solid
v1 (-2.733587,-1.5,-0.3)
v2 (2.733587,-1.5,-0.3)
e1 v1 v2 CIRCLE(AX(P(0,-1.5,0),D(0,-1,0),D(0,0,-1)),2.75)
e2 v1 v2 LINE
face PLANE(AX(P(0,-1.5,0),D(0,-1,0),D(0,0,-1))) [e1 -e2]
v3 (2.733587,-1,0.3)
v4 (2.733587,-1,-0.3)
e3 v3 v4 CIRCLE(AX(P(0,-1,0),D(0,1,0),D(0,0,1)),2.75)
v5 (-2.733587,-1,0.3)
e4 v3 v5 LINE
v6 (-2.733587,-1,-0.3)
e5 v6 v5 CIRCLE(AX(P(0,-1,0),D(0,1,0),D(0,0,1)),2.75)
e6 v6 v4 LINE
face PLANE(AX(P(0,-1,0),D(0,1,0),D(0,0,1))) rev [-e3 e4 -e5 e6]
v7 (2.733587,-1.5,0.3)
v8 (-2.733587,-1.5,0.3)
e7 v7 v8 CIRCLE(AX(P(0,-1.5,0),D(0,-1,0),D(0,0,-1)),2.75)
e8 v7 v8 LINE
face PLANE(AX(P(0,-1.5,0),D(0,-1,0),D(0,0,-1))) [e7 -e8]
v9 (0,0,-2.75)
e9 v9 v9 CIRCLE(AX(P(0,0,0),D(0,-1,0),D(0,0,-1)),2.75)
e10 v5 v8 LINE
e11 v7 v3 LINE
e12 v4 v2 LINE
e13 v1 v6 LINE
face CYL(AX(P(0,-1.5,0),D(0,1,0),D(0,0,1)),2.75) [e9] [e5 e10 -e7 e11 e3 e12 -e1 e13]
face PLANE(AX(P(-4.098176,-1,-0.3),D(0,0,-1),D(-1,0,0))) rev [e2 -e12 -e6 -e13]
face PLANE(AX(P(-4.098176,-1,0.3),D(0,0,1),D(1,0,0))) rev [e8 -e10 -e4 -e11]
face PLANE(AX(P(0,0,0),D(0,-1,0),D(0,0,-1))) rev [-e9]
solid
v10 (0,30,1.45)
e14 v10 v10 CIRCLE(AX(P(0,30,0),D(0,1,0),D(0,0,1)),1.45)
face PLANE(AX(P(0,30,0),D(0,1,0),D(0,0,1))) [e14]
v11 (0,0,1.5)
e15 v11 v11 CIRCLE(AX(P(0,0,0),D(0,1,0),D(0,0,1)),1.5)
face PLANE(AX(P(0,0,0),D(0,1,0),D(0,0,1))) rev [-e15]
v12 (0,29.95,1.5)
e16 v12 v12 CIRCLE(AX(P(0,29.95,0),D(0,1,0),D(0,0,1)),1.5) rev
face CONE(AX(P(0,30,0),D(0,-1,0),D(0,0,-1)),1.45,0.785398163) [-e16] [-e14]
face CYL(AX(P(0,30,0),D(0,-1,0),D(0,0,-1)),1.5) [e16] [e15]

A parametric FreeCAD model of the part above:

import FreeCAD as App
import Part
import Sketcher
Q = App.Units.Quantity


def edges_at(feature, points):
    """Names of the edges that pass closest to the given points."""
    edges = feature.Shape.Edges
    near = lambda p: min(range(len(edges)), key=lambda i: edges[i].distToShape(Part.Vertex(*p))[0])
    return sorted({f"Edge{near(p) + 1}" for p in points})

doc = App.newDocument("Part")
body = doc.addObject("PartDesign::Body", "Body")

sketch1 = body.newObject("Sketcher::SketchObject", "Sketch")
sketch1.AttachmentSupport = (doc.getObject("XZ_Plane"), [""])
sketch1.MapMode = "FlatFace"
sketch1.addGeometry(Part.Circle(App.Vector(0, 0, 0), App.Vector(0, 0, 1), 1.5), False)
sketch1.addConstraint([
    Sketcher.Constraint("Coincident", 0, 3, -1, 1),
    Sketcher.Constraint("Diameter", 0, Q("3 mm")),
])
pad1 = body.newObject("PartDesign::Pad", "Pad")
pad1.Profile = sketch1
pad1.Length = 30
pad1.Reversed = True
doc.recompute()

chamfer = body.newObject("PartDesign::Chamfer", "Chamfer")
chamfer.Base = (pad1, edges_at(pad1, [(-1.5, 30, 0)]))
chamfer.Size = 0.05
body2 = doc.addObject("PartDesign::Body", "Body001")

sketch2 = body2.newObject("Sketcher::SketchObject", "Sketch001")
sketch2.AttachmentSupport = (doc.getObject("XZ_Plane001"), [""])
sketch2.MapMode = "FlatFace"
sketch2.addGeometry(Part.Circle(App.Vector(0, 0, 0), App.Vector(0, 0, 1), 2.75), False)
sketch2.addConstraint([
    Sketcher.Constraint("Coincident", 0, 3, -1, 1),
    Sketcher.Constraint("Diameter", 0, Q("5.5 mm")),
])
pad2 = body2.newObject("PartDesign::Pad", "Pad001")
pad2.Profile = sketch2
pad2.Length = 1.5

sketch3 = body2.newObject("Sketcher::SketchObject", "Sketch002")
sketch3.AttachmentSupport = (doc.getObject("XZ_Plane001"), [""])
sketch3.MapMode = "FlatFace"
sketch3.AttachmentOffset = App.Placement(App.Vector(0, 0, 1.5), App.Rotation())
sketch3.addGeometry([
    Part.LineSegment(App.Vector(-4.098176, 0.3, 0), App.Vector(-4.098176, -0.3, 0)),
    Part.LineSegment(App.Vector(-4.098176, -0.3, 0), App.Vector(4.098176, -0.3, 0)),
    Part.LineSegment(App.Vector(4.098176, -0.3, 0), App.Vector(4.098176, 0.3, 0)),
    Part.LineSegment(App.Vector(4.098176, 0.3, 0), App.Vector(-4.098176, 0.3, 0)),
], False)
sketch3.addConstraint([
    Sketcher.Constraint("Coincident", 0, 2, 1, 1),
    Sketcher.Constraint("Coincident", 1, 2, 2, 1),
    Sketcher.Constraint("Coincident", 2, 2, 3, 1),
    Sketcher.Constraint("Coincident", 3, 2, 0, 1),
    Sketcher.Constraint("Vertical", 0),
    Sketcher.Constraint("Horizontal", 1),
    Sketcher.Constraint("Vertical", 2),
    Sketcher.Constraint("Horizontal", 3),
    Sketcher.Constraint("Symmetric", 0, 2, 2, 2, -1, 1),
    Sketcher.Constraint("DistanceY", 0, 2, 0, 1, Q("0.6 mm")),
    Sketcher.Constraint("DistanceX", 1, 1, 1, 2, Q("8.196352 mm")),
])
pocket1 = body2.newObject("PartDesign::Pocket", "Pocket")
pocket1.Profile = sketch3
pocket1.Length = 0.5

doc.recompute()
